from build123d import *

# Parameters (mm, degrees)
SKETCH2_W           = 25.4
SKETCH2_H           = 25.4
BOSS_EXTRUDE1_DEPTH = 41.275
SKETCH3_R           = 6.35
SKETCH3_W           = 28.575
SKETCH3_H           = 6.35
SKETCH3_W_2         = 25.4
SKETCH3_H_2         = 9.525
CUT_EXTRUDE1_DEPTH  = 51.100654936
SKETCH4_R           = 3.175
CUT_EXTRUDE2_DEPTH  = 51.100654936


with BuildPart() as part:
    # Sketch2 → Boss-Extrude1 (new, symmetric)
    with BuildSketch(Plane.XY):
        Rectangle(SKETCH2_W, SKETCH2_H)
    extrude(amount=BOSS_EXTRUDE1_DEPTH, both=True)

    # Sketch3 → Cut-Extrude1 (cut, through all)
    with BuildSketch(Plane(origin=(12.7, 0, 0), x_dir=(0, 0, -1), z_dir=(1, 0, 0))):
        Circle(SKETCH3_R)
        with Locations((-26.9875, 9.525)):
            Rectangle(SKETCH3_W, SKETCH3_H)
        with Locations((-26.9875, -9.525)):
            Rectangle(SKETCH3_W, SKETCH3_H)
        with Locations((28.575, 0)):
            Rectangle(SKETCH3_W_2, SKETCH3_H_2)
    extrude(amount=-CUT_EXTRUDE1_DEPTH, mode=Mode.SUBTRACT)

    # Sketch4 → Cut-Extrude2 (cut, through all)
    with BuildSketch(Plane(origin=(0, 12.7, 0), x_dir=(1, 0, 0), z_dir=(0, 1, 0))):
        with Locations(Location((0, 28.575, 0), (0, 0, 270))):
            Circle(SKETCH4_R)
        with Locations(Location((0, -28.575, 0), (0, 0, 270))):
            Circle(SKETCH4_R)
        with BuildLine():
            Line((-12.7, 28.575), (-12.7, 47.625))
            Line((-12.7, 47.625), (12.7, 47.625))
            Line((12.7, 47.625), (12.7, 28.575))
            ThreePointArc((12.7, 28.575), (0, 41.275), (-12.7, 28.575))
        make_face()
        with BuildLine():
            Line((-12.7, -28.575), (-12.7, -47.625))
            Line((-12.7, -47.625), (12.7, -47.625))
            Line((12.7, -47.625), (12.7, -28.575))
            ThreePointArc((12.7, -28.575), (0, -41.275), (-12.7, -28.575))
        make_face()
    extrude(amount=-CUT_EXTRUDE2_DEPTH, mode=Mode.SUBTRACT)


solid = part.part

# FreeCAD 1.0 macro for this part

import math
import FreeCAD as App
import Part
import Sketcher
Q = App.Units.Quantity

doc = App.newDocument("Part")
body = doc.addObject("PartDesign::Body", "Body")

# Sketch on XY plane
sketch1 = body.newObject("Sketcher::SketchObject", "Sketch")
sketch1.AttachmentSupport = (doc.getObject("XY_Plane"), [""])
sketch1.MapMode = "FlatFace"
sketch1.addGeometry([
    Part.LineSegment(App.Vector(-13, 13, 0), App.Vector(-13, -13, 0)),
    Part.LineSegment(App.Vector(-13, -13, 0), App.Vector(13, -13, 0)),
    Part.LineSegment(App.Vector(13, -13, 0), App.Vector(13, 13, 0)),
    Part.LineSegment(App.Vector(13, 13, 0), App.Vector(-13, 13, 0)),
], False)
sketch1.addConstraint([
    Sketcher.Constraint("Coincident", 0, 2, 1, 1),
    Sketcher.Constraint("Coincident", 1, 2, 2, 1),
    Sketcher.Constraint("Coincident", 2, 2, 3, 1),
    Sketcher.Constraint("Coincident", 3, 2, 0, 1),
    Sketcher.Constraint("Vertical", 0),
    Sketcher.Constraint("Horizontal", 1),
    Sketcher.Constraint("Vertical", 2),
    Sketcher.Constraint("Horizontal", 3),
    Sketcher.Constraint("Symmetric", 0, 2, 2, 2, -1, 1),
    Sketcher.Constraint("Equal", 3, 0),
    Sketcher.Constraint("DistanceX", 1, 1, 1, 2, Q("1 in")),
])
pad1 = body.newObject("PartDesign::Pad", "Pad")
pad1.Profile = sketch1
pad1.Length = Q("3.25 in")
pad1.Midplane = True

# Sketch on YZ plane
sketch2 = body.newObject("Sketcher::SketchObject", "Sketch001")
sketch2.AttachmentSupport = (doc.getObject("YZ_Plane"), [""])
sketch2.MapMode = "FlatFace"
sketch2.AttachmentOffset = App.Placement(App.Vector(0, 0, 0.5 * 25.4), App.Rotation())
sketch2.addGeometry([
    Part.Circle(App.Vector(0, 0, 0), App.Vector(0, 0, 1), 6),  # 0
    Part.LineSegment(App.Vector(13, 41, 0), App.Vector(6, 41, 0)),  # 1
    Part.LineSegment(App.Vector(6, 41, 0), App.Vector(6, 13, 0)),  # 2
    Part.LineSegment(App.Vector(6, 13, 0), App.Vector(13, 13, 0)),  # 3
    Part.LineSegment(App.Vector(13, 13, 0), App.Vector(13, 41, 0)),  # 4
    Part.LineSegment(App.Vector(-6, 41, 0), App.Vector(-13, 41, 0)),  # 5
    Part.LineSegment(App.Vector(-13, 41, 0), App.Vector(-13, 13, 0)),  # 6
    Part.LineSegment(App.Vector(-13, 13, 0), App.Vector(-6, 13, 0)),  # 7
    Part.LineSegment(App.Vector(-6, 13, 0), App.Vector(-6, 41, 0)),  # 8
    Part.LineSegment(App.Vector(5, -16, 0), App.Vector(-5, -16, 0)),  # 9
    Part.LineSegment(App.Vector(-5, -16, 0), App.Vector(-5, -41, 0)),  # 10
    Part.LineSegment(App.Vector(-5, -41, 0), App.Vector(5, -41, 0)),  # 11
    Part.LineSegment(App.Vector(5, -41, 0), App.Vector(5, -16, 0)),  # 12
], False)
sketch2.addConstraint([
    Sketcher.Constraint("Coincident", 1, 2, 2, 1),
    Sketcher.Constraint("Coincident", 2, 2, 3, 1),
    Sketcher.Constraint("Coincident", 3, 2, 4, 1),
    Sketcher.Constraint("Coincident", 4, 2, 1, 1),
    Sketcher.Constraint("Coincident", 5, 2, 6, 1),
    Sketcher.Constraint("Coincident", 6, 2, 7, 1),
    Sketcher.Constraint("Coincident", 7, 2, 8, 1),
    Sketcher.Constraint("Coincident", 8, 2, 5, 1),
    Sketcher.Constraint("Coincident", 9, 2, 10, 1),
    Sketcher.Constraint("Coincident", 10, 2, 11, 1),
    Sketcher.Constraint("Coincident", 11, 2, 12, 1),
    Sketcher.Constraint("Coincident", 12, 2, 9, 1),
    Sketcher.Constraint("Horizontal", 1),
    Sketcher.Constraint("Vertical", 2),
    Sketcher.Constraint("Horizontal", 3),
    Sketcher.Constraint("Vertical", 4),
    Sketcher.Constraint("Horizontal", 5),
    Sketcher.Constraint("Vertical", 6),
    Sketcher.Constraint("Horizontal", 7),
    Sketcher.Constraint("Vertical", 8),
    Sketcher.Constraint("Horizontal", 9),
    Sketcher.Constraint("Vertical", 10),
    Sketcher.Constraint("Horizontal", 11),
    Sketcher.Constraint("Vertical", 12),
    Sketcher.Constraint("Coincident", 0, 3, -1, 1),
    Sketcher.Constraint("Symmetric", 4, 2, 5, 2, -2),
    Sketcher.Constraint("Symmetric", 2, 2, 7, 2, -2),
    Sketcher.Constraint("Diameter", 0, Q("0.5 in")),
    Sketcher.Constraint("DistanceY", 10, 2, 10, 1, Q("1 in")),
    Sketcher.Constraint("DistanceX", 5, 2, 4, 2, Q("1 in")),
    Sketcher.Constraint("DistanceX", 1, 2, 1, 1, Q("0.25 in")),
    Sketcher.Constraint("DistanceY", -1, 1, 2, 2, Q("0.5 in")),
    Sketcher.Constraint("DistanceX", 9, 2, 9, 1, Q("0.375 in")),
    Sketcher.Constraint("DistanceY", 2, 2, 2, 1, Q("1.125 in")),
    Sketcher.Constraint("DistanceX", 9, 2, -1, 1, Q("0.1875 in")),
    Sketcher.Constraint("DistanceY", 9, 2, -1, 1, Q("0.625 in")),
])
pocket1 = body.newObject("PartDesign::Pocket", "Pocket")
pocket1.Profile = sketch2
pocket1.Type = "ThroughAll"

# Sketch on XZ plane
sketch3 = body.newObject("Sketcher::SketchObject", "Sketch002")
sketch3.AttachmentSupport = (doc.getObject("XZ_Plane"), [""])
sketch3.MapMode = "FlatFace"
sketch3.AttachmentOffset = App.Placement(App.Vector(0, 0, -0.5 * 25.4), App.Rotation())
sketch3.addGeometry([
    Part.Circle(App.Vector(0, -28.6, 0), App.Vector(0, 0, 1), 3.2),  # 0
    Part.Circle(App.Vector(0, 28.6, 0), App.Vector(0, 0, 1), 3.2),  # 1
    Part.LineSegment(App.Vector(-12.7, -47.6, 0), App.Vector(-12.7, -28.6, 0)),  # 2
    Part.ArcOfCircle(Part.Circle(App.Vector(0, -28.6, 0), App.Vector(0, 0, 1), 12.7), math.radians(180), math.radians(360)),  # 3
    Part.LineSegment(App.Vector(12.7, -28.6, 0), App.Vector(12.7, -47.6, 0)),  # 4
    Part.LineSegment(App.Vector(12.7, -47.6, 0), App.Vector(-12.7, -47.6, 0)),  # 5
    Part.LineSegment(App.Vector(-12.7, 28.6, 0), App.Vector(-12.7, 47.6, 0)),  # 6
    Part.LineSegment(App.Vector(-12.7, 47.6, 0), App.Vector(12.7, 47.6, 0)),  # 7
    Part.LineSegment(App.Vector(12.7, 47.6, 0), App.Vector(12.7, 28.6, 0)),  # 8
    Part.ArcOfCircle(Part.Circle(App.Vector(0, 28.6, 0), App.Vector(0, 0, 1), 12.7), math.radians(0), math.radians(180)),  # 9
], False)
sketch3.addConstraint([
    Sketcher.Constraint("Tangent", 2, 2, 3, 1),
    Sketcher.Constraint("Tangent", 3, 2, 4, 1),
    Sketcher.Constraint("Coincident", 4, 2, 5, 1),
    Sketcher.Constraint("Coincident", 5, 2, 2, 1),
    Sketcher.Constraint("Coincident", 6, 2, 7, 1),
    Sketcher.Constraint("Coincident", 7, 2, 8, 1),
    Sketcher.Constraint("Tangent", 8, 2, 9, 1),
    Sketcher.Constraint("Tangent", 9, 2, 6, 1),
    Sketcher.Constraint("Vertical", 2),
    Sketcher.Constraint("Vertical", 4),
    Sketcher.Constraint("Horizontal", 5),
    Sketcher.Constraint("Vertical", 6),
    Sketcher.Constraint("Horizontal", 7),
    Sketcher.Constraint("Vertical", 8),
    Sketcher.Constraint("Coincident", 3, 3, 0, 3),
    Sketcher.Constraint("Coincident", 9, 3, 1, 3),
    Sketcher.Constraint("Equal", 0, 1),
    Sketcher.Constraint("Equal", 3, 9),
    Sketcher.Constraint("Symmetric", 0, 3, 1, 3, -1, 1),
    Sketcher.Constraint("Symmetric", 5, 2, 6, 2, -1),
    Sketcher.Constraint("Radius", 3, Q("0.5 in")),
    Sketcher.Constraint("Diameter", 0, Q("0.25 in")),
    Sketcher.Constraint("DistanceY", 4, 2, 1, 3, Q("3 in")),
    Sketcher.Constraint("DistanceY", 2, 1, 2, 2, Q("0.75 in")),
])
pocket2 = body.newObject("PartDesign::Pocket", "Pocket001")
pocket2.Profile = sketch3
pocket2.Type = "ThroughAll"
pocket2.Reversed = True

doc.recompute()
